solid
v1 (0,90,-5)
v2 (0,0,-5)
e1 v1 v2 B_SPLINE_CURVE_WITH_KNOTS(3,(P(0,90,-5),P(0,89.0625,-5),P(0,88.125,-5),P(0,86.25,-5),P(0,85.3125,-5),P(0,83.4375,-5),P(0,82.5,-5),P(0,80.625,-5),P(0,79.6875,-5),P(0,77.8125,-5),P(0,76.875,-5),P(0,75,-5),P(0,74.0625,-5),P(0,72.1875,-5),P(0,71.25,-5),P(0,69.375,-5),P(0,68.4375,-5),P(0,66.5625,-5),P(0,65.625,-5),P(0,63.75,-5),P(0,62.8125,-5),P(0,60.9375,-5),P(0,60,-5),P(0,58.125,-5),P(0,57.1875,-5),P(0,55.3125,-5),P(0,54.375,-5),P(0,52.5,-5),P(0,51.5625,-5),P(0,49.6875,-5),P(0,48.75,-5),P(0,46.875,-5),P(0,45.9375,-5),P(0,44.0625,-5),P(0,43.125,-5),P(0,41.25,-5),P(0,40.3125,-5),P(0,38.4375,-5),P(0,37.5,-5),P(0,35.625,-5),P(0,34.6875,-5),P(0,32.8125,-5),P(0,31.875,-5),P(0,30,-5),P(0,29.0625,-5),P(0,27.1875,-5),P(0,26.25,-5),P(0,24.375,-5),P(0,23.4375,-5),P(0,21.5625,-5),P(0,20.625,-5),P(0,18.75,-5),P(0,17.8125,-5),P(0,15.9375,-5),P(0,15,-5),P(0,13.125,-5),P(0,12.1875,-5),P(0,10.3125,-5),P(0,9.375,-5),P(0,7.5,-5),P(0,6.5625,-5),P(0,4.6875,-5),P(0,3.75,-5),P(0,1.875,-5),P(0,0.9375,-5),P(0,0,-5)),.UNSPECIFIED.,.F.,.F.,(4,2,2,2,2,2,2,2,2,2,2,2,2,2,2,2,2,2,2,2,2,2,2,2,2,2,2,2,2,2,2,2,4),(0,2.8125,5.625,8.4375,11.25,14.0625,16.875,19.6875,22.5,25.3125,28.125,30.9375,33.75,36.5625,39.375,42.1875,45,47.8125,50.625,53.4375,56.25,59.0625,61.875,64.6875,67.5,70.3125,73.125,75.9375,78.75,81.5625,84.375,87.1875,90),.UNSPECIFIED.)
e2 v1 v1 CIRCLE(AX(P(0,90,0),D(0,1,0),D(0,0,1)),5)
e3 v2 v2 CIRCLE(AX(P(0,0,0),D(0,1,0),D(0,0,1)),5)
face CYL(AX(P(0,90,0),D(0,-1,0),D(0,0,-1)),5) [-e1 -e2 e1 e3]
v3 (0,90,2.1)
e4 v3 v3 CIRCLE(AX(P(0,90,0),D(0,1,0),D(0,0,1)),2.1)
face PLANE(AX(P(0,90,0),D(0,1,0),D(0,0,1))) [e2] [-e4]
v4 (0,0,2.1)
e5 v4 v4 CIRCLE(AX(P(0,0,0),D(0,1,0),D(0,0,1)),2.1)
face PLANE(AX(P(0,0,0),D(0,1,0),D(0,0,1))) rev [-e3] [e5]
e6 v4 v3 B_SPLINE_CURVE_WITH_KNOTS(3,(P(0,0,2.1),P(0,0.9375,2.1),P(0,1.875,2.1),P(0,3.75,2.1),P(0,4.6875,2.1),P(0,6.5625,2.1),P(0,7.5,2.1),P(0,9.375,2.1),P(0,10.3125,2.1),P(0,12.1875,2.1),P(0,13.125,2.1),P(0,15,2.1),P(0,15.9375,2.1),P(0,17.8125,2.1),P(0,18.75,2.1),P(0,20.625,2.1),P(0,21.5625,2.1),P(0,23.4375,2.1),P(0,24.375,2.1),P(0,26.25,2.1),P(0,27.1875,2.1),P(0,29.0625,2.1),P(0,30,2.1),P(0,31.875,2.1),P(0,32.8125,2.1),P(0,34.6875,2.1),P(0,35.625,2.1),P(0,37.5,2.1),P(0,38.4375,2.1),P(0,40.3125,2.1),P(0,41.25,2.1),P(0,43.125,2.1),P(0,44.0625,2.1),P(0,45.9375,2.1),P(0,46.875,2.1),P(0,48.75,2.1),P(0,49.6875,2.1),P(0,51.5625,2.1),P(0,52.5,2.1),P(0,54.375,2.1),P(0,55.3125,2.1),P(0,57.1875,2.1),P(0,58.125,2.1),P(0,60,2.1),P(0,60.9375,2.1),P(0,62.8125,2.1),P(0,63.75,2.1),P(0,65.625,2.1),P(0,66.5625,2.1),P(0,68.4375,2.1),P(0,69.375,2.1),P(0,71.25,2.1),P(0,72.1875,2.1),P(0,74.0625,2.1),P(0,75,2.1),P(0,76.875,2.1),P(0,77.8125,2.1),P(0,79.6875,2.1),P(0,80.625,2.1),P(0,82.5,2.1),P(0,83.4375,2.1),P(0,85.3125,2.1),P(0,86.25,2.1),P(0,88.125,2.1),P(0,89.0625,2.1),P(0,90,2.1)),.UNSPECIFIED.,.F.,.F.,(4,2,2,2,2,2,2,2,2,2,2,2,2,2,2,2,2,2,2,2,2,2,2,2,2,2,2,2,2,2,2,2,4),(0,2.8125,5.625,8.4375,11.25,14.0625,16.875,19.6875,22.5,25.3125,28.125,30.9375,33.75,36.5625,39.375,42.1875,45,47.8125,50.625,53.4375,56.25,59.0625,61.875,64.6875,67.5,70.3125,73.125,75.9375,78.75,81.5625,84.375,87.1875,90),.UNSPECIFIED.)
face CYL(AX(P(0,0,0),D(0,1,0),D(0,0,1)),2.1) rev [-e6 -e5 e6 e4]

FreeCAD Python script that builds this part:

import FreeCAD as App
import Part
import Sketcher

V = App.Vector

doc = App.newDocument("Part")
params = doc.addObject("Spreadsheet::Sheet", "Params")
for row, (alias, value) in enumerate([
    ("sketch1_diameter", "10 mm"),
    ("pad1_length", "90 mm"),
    ("sketch2_diameter", "4.2 mm"),
], start=1):
    params.set(f"A{row}", alias)
    params.set(f"B{row}", "=" + value)
    params.setAlias(f"B{row}", alias)

body = doc.addObject("PartDesign::Body", "Body")

# Sketch on XZ plane
sketch1 = doc.addObject("Sketcher::SketchObject", "Sketch")
body.addObject(sketch1)
sketch1.AttachmentSupport = (doc.XZ_Plane, [""])
sketch1.MapMode = "FlatFace"
sketch1.addGeometry(Part.Circle(V(0, 0, 0), V(0, 0, 1), 5), False)
sketch1.addConstraint(Sketcher.Constraint("Coincident", 0, 3, -1, 1))
sketch1.addConstraint(Sketcher.Constraint("Diameter", 0, 10.0))
sketch1.setExpression("Constraints[1]", "Params.sketch1_diameter")
pad1 = doc.addObject("PartDesign::Pad", "Pad")
body.addObject(pad1)
pad1.Profile = sketch1
pad1.setExpression("Length", "Params.pad1_length")
pad1.Reversed = True

# Sketch on XZ plane
sketch2 = doc.addObject("Sketcher::SketchObject", "Sketch001")
body.addObject(sketch2)
sketch2.AttachmentSupport = (doc.XZ_Plane, [""])
sketch2.MapMode = "FlatFace"
sketch2.AttachmentOffset = App.Placement(V(0, 0, -90), App.Rotation())
sketch2.addGeometry(Part.Circle(V(0, 0, 0), V(0, 0, 1), 2.1), False)
sketch2.addConstraint(Sketcher.Constraint("Coincident", 0, 3, -1, 1))
sketch2.addConstraint(Sketcher.Constraint("Diameter", 0, 4.2))
sketch2.setExpression("Constraints[1]", "Params.sketch2_diameter")
pocket1 = doc.addObject("PartDesign::Pocket", "Pocket")
body.addObject(pocket1)
pocket1.Profile = sketch2
pocket1.Type = "ThroughAll"
pocket1.Reversed = True

doc.recompute()
